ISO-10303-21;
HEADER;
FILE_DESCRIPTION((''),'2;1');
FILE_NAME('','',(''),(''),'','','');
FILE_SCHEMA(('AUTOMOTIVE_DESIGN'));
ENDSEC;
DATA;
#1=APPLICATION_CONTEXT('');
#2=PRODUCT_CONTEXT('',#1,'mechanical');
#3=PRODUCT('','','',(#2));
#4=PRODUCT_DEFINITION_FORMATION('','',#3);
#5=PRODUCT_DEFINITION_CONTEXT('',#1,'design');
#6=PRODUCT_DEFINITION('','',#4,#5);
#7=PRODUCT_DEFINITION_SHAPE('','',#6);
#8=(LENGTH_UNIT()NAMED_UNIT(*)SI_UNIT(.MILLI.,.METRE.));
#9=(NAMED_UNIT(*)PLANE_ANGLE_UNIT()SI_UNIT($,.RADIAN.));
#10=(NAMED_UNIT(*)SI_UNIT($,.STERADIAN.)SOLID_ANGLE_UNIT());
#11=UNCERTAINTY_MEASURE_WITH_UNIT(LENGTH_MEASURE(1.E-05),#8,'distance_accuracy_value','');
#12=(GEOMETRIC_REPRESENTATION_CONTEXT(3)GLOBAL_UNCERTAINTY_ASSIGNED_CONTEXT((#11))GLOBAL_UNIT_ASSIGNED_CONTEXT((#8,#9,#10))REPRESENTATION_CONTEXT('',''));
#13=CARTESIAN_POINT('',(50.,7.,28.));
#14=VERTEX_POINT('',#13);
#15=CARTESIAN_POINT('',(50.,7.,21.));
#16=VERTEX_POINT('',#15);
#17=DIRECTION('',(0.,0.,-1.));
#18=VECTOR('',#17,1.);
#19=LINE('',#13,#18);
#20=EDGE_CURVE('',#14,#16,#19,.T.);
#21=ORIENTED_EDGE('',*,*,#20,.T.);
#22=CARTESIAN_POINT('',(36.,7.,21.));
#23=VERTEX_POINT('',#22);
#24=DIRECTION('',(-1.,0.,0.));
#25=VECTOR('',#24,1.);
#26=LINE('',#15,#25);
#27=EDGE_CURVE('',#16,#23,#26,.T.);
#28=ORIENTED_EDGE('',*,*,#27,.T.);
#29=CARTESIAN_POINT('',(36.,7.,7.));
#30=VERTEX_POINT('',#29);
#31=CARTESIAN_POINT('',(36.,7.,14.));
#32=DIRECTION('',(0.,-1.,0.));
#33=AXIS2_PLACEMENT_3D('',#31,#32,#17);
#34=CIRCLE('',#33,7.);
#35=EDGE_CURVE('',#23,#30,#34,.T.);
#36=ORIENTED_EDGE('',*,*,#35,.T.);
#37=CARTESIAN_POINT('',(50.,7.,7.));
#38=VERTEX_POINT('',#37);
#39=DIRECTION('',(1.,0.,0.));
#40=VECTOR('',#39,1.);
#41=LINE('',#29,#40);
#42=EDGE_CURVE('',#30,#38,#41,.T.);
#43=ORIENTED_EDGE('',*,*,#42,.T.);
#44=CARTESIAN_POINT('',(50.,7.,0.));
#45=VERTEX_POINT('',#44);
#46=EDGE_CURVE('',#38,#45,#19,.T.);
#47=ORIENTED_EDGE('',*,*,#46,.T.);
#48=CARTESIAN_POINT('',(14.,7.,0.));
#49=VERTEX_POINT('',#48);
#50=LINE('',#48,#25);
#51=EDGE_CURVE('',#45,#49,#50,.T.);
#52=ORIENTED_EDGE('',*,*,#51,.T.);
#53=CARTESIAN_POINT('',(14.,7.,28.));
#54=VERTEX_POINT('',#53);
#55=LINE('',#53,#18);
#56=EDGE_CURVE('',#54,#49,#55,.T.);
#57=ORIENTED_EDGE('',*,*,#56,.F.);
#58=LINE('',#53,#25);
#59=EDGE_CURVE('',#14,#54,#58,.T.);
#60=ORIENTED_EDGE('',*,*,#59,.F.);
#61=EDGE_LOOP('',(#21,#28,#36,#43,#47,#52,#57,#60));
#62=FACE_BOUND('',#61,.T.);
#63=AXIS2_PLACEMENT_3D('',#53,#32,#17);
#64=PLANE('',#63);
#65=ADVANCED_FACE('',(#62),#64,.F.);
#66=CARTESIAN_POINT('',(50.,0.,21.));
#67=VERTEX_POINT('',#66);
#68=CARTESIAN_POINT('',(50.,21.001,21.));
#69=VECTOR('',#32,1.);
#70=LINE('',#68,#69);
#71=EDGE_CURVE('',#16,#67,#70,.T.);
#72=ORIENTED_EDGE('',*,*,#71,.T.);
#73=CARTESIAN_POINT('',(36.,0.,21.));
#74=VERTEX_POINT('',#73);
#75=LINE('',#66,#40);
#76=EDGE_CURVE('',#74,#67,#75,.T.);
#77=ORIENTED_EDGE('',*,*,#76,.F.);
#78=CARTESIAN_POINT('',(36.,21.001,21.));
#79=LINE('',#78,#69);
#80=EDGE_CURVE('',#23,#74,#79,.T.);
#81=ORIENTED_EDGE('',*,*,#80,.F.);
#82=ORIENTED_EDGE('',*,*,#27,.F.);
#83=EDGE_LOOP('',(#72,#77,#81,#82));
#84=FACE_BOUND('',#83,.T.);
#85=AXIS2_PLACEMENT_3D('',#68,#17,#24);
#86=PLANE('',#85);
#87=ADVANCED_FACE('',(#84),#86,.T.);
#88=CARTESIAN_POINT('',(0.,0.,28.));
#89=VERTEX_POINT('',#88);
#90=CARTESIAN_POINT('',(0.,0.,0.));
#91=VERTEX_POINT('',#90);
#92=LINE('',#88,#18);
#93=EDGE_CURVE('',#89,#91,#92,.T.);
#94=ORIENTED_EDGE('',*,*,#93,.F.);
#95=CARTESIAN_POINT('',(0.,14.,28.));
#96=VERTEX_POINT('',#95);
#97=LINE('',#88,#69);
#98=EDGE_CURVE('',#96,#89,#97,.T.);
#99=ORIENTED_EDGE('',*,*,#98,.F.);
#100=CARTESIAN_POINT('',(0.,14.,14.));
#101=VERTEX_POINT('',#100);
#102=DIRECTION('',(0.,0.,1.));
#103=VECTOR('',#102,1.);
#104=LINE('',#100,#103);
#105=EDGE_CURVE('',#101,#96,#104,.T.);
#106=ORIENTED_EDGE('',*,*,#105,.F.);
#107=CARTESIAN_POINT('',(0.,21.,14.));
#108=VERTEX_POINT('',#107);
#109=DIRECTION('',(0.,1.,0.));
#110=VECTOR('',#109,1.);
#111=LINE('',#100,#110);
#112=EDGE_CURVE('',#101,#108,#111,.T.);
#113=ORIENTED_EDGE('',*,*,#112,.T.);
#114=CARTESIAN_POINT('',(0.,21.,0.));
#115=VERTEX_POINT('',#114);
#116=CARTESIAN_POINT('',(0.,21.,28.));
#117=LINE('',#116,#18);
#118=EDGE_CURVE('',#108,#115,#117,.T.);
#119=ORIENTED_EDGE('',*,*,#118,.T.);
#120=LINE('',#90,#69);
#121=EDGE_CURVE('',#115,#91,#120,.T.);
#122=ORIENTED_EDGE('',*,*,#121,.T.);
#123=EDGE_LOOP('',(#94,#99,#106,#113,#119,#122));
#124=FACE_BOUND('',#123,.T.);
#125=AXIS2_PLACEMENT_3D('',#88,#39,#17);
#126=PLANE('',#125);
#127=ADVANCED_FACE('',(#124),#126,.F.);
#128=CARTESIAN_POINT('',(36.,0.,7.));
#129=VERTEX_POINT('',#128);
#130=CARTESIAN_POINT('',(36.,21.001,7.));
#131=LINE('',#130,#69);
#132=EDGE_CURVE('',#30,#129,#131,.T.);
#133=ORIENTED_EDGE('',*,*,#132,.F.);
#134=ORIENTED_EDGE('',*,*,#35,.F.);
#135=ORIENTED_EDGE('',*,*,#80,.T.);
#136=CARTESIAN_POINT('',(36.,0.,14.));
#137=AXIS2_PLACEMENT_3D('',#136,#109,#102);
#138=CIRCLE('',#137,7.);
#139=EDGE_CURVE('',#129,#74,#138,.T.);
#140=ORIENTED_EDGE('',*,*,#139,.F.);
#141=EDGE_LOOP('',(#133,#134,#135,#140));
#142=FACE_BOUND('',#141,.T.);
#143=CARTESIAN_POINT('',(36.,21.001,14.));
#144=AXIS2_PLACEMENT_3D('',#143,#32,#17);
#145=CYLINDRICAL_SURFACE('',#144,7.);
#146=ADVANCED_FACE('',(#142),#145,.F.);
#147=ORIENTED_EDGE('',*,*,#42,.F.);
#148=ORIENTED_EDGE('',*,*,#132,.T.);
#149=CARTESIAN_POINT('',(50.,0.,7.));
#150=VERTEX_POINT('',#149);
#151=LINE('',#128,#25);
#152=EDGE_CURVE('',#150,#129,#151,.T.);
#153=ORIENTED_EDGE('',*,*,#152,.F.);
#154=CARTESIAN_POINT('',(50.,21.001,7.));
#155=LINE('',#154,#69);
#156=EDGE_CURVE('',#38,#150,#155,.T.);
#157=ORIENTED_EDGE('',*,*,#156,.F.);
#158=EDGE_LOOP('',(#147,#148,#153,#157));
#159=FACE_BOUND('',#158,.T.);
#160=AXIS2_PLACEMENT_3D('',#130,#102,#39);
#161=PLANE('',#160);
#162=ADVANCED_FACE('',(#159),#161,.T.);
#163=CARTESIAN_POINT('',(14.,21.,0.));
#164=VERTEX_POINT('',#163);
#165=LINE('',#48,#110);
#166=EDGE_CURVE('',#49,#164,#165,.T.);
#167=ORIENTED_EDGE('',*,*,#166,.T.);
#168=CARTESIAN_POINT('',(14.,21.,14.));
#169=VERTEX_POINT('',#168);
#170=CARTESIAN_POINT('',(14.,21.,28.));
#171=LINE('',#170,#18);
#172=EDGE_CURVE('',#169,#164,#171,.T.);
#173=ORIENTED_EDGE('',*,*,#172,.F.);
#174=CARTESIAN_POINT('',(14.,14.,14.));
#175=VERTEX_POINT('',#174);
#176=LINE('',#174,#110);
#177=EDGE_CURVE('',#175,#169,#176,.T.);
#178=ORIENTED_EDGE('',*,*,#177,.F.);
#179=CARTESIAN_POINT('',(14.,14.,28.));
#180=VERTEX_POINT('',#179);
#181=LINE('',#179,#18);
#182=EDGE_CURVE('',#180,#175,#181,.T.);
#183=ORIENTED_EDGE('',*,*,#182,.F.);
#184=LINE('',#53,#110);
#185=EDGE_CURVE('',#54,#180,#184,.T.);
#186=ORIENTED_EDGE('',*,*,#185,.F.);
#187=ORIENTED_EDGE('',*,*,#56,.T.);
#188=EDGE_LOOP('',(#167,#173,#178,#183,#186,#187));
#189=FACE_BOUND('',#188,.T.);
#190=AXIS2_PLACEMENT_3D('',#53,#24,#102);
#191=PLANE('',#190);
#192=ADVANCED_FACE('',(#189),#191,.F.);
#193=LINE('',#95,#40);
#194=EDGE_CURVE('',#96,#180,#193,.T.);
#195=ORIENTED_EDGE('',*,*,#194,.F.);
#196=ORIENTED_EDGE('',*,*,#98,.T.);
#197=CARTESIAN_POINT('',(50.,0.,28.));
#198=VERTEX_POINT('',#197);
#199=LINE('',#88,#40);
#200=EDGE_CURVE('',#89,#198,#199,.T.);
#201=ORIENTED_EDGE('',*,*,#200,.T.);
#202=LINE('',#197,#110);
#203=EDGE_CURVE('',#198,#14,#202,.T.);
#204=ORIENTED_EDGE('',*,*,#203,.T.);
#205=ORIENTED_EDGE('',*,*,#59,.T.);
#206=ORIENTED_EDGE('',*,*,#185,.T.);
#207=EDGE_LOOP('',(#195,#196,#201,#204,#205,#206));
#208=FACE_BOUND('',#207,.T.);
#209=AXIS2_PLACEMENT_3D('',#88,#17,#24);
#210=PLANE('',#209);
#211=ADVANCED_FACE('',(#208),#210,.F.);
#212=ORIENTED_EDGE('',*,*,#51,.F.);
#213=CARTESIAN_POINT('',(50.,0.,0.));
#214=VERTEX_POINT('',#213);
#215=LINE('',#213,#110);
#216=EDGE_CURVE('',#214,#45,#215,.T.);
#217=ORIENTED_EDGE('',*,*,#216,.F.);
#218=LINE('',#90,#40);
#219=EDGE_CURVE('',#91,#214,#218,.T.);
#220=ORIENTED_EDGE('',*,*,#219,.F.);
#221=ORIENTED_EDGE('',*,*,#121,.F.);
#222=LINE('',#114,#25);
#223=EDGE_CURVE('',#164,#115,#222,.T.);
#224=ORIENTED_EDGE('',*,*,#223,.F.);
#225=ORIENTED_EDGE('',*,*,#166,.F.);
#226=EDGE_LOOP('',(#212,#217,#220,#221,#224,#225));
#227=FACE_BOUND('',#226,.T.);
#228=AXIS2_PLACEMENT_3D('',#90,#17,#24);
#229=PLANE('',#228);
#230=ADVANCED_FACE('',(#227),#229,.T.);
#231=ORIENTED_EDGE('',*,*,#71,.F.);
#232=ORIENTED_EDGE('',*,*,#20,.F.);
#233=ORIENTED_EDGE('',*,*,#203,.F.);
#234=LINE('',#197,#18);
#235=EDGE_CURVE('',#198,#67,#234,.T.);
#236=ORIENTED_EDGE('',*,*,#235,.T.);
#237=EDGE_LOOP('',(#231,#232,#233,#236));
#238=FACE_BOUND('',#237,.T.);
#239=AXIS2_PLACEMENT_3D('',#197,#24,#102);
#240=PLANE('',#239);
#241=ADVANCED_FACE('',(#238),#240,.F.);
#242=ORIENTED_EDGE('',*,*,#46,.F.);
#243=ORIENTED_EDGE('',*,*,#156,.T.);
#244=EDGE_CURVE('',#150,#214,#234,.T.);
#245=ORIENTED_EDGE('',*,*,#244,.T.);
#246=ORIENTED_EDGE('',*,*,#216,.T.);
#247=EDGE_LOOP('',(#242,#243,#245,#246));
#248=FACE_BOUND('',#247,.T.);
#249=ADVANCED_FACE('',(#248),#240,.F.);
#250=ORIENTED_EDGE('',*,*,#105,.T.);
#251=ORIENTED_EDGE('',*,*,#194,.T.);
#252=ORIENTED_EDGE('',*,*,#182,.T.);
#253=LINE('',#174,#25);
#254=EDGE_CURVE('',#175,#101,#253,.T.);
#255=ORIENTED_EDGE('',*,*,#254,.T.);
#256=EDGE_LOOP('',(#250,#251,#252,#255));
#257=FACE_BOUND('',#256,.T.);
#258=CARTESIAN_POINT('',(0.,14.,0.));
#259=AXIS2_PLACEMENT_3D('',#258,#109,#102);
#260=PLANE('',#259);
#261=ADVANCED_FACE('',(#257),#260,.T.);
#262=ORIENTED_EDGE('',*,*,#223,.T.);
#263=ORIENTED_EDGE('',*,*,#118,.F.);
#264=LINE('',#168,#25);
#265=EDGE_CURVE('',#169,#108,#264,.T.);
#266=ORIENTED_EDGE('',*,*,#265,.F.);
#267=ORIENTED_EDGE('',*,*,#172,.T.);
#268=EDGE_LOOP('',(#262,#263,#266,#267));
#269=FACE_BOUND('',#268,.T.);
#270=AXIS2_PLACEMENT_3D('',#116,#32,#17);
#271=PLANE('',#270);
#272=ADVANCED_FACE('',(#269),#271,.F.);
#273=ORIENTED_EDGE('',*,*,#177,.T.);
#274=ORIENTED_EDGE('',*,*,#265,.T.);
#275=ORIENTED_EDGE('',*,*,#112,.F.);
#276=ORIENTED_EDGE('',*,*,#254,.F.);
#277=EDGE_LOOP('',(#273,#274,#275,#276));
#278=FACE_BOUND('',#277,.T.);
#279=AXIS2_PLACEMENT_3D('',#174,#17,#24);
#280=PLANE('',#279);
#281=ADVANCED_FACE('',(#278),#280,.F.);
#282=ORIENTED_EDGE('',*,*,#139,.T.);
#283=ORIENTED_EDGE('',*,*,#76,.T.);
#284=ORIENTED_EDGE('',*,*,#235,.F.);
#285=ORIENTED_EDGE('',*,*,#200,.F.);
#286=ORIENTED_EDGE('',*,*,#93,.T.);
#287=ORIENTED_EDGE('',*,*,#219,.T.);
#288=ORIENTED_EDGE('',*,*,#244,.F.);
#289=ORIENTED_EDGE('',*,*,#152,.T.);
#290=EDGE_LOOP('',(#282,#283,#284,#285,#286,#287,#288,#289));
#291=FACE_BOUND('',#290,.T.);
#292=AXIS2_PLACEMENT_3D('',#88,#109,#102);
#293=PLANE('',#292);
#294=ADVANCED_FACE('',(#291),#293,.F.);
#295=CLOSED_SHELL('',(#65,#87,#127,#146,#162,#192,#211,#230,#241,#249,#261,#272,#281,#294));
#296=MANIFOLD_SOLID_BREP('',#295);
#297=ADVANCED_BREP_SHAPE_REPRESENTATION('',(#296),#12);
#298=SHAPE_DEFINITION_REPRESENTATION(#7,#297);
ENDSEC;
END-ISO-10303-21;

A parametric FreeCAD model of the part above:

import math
import FreeCAD as App
import Part
import Sketcher
from FreeCAD import Vector


def add_polygon(sketch, points):
    """Adds a closed chain of lines whose ends are joined by coincident constraints."""
    first, n = sketch.GeometryCount, len(points)
    for a, b in zip(points, points[1:] + points[:1]):
        sketch.addGeometry(Part.LineSegment(App.Vector(*a, 0), App.Vector(*b, 0)), False)
    for i in range(n):
        sketch.addConstraint(Sketcher.Constraint("Coincident", first + i, 2, first + (i + 1) % n, 1))

doc = App.newDocument("Part")
body = doc.addObject("PartDesign::Body", "Body")

sketch1 = body.newObject("Sketcher::SketchObject", "Sketch")
sketch1.AttachmentSupport = (doc.getObject("XY_Plane"), [""])
sketch1.MapMode = "FlatFace"
add_polygon(sketch1, [(14, 7), (14, 21), (0, 21), (0, 0), (50, 0), (50, 7)])
sketch1.addConstraint([
    Sketcher.Constraint("Vertical", 0),
    Sketcher.Constraint("Horizontal", 1),
    Sketcher.Constraint("Vertical", 2),
    Sketcher.Constraint("Horizontal", 3),
    Sketcher.Constraint("Vertical", 4),
    Sketcher.Constraint("Horizontal", 5),
    Sketcher.Constraint("Coincident", 2, 2, -1, 1),
    Sketcher.Constraint("Equal", 1, 0),
    Sketcher.Constraint("DistanceX", 1, 2, 1, 1, 14.0),
    Sketcher.Constraint("DistanceX", 3, 1, 3, 2, 50.0),
    Sketcher.Constraint("DistanceY", 2, 2, 2, 1, 21.0),
])
pad1 = body.newObject("PartDesign::Pad", "Pad")
pad1.Profile = sketch1
pad1.Length = 28

sketch2 = body.newObject("Sketcher::SketchObject", "Sketch001")
sketch2.AttachmentSupport = (doc.getObject("XZ_Plane"), [""])
sketch2.MapMode = "FlatFace"
sketch2.AttachmentOffset = App.Placement(Vector(0, 0, -21), App.Rotation())
add_polygon(sketch2, [(0, 14), (0, 28), (14, 28), (14, 14)])
sketch2.addConstraint([
    Sketcher.Constraint("Vertical", 0),
    Sketcher.Constraint("Horizontal", 1),
    Sketcher.Constraint("Vertical", 2),
    Sketcher.Constraint("Horizontal", 3),
    Sketcher.Constraint("PointOnObject", 0, 2, -2),
    Sketcher.Constraint("Equal", 3, 0),
    Sketcher.Constraint("DistanceX", 1, 1, 1, 2, 14.0),
    Sketcher.Constraint("DistanceY", -1, 1, 0, 2, 28.0),
])
pocket1 = body.newObject("PartDesign::Pocket", "Pocket")
pocket1.Profile = sketch2
pocket1.Length = 7
pocket1.Reversed = True

sketch3 = body.newObject("Sketcher::SketchObject", "Sketch002")
sketch3.AttachmentSupport = (doc.getObject("XZ_Plane"), [""])
sketch3.MapMode = "FlatFace"
sketch3.addGeometry([
    Part.LineSegment(Vector(50, 7, 0), Vector(36, 7, 0)),
    Part.ArcOfCircle(Part.Circle(Vector(36, 14, 0), Vector(0, 0, 1), 7), math.radians(90), math.radians(270)),
    Part.LineSegment(Vector(36, 21, 0), Vector(50, 21, 0)),
    Part.LineSegment(Vector(50, 21, 0), Vector(50, 7, 0)),
], False)
sketch3.addConstraint([
    Sketcher.Constraint("Tangent", 0, 2, 1, 2),
    Sketcher.Constraint("Tangent", 1, 1, 2, 1),
    Sketcher.Constraint("Coincident", 2, 2, 3, 1),
    Sketcher.Constraint("Coincident", 3, 2, 0, 1),
    Sketcher.Constraint("Horizontal", 0),
    Sketcher.Constraint("Horizontal", 2),
    Sketcher.Constraint("Vertical", 3),
    Sketcher.Constraint("Equal", 2, 3),
    Sketcher.Constraint("Radius", 1, 7.0),
    Sketcher.Constraint("DistanceX", -1, 1, 1, 3, 36.0),
    Sketcher.Constraint("DistanceY", -1, 1, 1, 3, 14.0),
])
pocket2 = body.newObject("PartDesign::Pocket", "Pocket001")
pocket2.Profile = sketch3
pocket2.Type = "UpToFirst"

doc.recompute()
